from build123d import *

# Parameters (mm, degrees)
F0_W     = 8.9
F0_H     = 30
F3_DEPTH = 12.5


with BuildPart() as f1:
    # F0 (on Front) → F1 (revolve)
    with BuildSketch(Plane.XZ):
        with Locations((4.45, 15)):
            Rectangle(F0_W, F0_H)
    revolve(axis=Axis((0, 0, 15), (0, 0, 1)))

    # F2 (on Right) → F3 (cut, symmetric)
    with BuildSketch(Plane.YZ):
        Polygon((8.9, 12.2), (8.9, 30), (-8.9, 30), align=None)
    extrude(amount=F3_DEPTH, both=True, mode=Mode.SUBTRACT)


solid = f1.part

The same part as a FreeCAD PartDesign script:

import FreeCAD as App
import Part
import Sketcher

V = App.Vector


def add_polygon(sketch, points):
    """Adds a closed chain of lines whose ends are joined by coincident constraints."""
    first, n = sketch.GeometryCount, len(points)
    for a, b in zip(points, points[1:] + points[:1]):
        sketch.addGeometry(Part.LineSegment(App.Vector(*a, 0), App.Vector(*b, 0)), False)
    for i in range(n):
        sketch.addConstraint(Sketcher.Constraint("Coincident", first + i, 2, first + (i + 1) % n, 1))

doc = App.newDocument("Part")
params = doc.addObject("Spreadsheet::Sheet", "Params")
for row, (alias, value) in enumerate([
    ("sketch1_height", "30 mm"),
    ("sketch1_width", "8.9 mm"),
    ("revolution_angle", "360 deg"),
    ("sketch2_width", "17.8 mm"),
    ("pocket1_length", "25 mm"),
], start=1):
    params.set(f"A{row}", alias)
    params.set(f"B{row}", "=" + value)
    params.setAlias(f"B{row}", alias)

body = doc.addObject("PartDesign::Body", "Body")

# Sketch on XZ plane
sketch1 = doc.addObject("Sketcher::SketchObject", "Sketch")
body.addObject(sketch1)
sketch1.AttachmentSupport = (doc.XZ_Plane, [""])
sketch1.MapMode = "FlatFace"
add_polygon(sketch1, [(0, 30), (0, 0), (9, 0), (9, 30)])  # lines 0-3
sketch1.addConstraint([
    Sketcher.Constraint("Vertical", 0),
    Sketcher.Constraint("Horizontal", 1),
    Sketcher.Constraint("Vertical", 2),
    Sketcher.Constraint("Horizontal", 3),
    Sketcher.Constraint("Coincident", 0, 2, -1, 1),
    Sketcher.Constraint("DistanceY", 0, 2, 0, 1, 30.0),
    Sketcher.Constraint("DistanceX", 1, 1, 1, 2, 8.9),
])
sketch1.setExpression("Constraints[9]", "Params.sketch1_height")
sketch1.setExpression("Constraints[10]", "Params.sketch1_width")
revolution = doc.addObject("PartDesign::Revolution", "Revolution")
body.addObject(revolution)
revolution.Profile = sketch1
revolution.ReferenceAxis = (sketch1, ["V_Axis"])
revolution.setExpression("Angle", "Params.revolution_angle")

# Sketch on YZ plane
sketch2 = doc.addObject("Sketcher::SketchObject", "Sketch001")
body.addObject(sketch2)
sketch2.AttachmentSupport = (doc.YZ_Plane, [""])
sketch2.MapMode = "FlatFace"
add_polygon(sketch2, [(9, 12), (9, 30), (-9, 30)])  # lines 0-2
sketch2.addConstraint([
    Sketcher.Constraint("Vertical", 0),
    Sketcher.Constraint("Horizontal", 1),
    Sketcher.Constraint("Equal", 1, 0),
    Sketcher.Constraint("DistanceX", 1, 2, 1, 1, 17.8),
    Sketcher.Constraint("DistanceY", -1, 1, 0, 2, 30.0),
    Sketcher.Constraint("DistanceX", -1, 1, 0, 2, 8.9),
])
sketch2.setExpression("Constraints[6]", "Params.sketch2_width")
pocket1 = doc.addObject("PartDesign::Pocket", "Pocket")
body.addObject(pocket1)
pocket1.Profile = sketch2
pocket1.setExpression("Length", "Params.pocket1_length")
pocket1.Midplane = True

doc.recompute()
